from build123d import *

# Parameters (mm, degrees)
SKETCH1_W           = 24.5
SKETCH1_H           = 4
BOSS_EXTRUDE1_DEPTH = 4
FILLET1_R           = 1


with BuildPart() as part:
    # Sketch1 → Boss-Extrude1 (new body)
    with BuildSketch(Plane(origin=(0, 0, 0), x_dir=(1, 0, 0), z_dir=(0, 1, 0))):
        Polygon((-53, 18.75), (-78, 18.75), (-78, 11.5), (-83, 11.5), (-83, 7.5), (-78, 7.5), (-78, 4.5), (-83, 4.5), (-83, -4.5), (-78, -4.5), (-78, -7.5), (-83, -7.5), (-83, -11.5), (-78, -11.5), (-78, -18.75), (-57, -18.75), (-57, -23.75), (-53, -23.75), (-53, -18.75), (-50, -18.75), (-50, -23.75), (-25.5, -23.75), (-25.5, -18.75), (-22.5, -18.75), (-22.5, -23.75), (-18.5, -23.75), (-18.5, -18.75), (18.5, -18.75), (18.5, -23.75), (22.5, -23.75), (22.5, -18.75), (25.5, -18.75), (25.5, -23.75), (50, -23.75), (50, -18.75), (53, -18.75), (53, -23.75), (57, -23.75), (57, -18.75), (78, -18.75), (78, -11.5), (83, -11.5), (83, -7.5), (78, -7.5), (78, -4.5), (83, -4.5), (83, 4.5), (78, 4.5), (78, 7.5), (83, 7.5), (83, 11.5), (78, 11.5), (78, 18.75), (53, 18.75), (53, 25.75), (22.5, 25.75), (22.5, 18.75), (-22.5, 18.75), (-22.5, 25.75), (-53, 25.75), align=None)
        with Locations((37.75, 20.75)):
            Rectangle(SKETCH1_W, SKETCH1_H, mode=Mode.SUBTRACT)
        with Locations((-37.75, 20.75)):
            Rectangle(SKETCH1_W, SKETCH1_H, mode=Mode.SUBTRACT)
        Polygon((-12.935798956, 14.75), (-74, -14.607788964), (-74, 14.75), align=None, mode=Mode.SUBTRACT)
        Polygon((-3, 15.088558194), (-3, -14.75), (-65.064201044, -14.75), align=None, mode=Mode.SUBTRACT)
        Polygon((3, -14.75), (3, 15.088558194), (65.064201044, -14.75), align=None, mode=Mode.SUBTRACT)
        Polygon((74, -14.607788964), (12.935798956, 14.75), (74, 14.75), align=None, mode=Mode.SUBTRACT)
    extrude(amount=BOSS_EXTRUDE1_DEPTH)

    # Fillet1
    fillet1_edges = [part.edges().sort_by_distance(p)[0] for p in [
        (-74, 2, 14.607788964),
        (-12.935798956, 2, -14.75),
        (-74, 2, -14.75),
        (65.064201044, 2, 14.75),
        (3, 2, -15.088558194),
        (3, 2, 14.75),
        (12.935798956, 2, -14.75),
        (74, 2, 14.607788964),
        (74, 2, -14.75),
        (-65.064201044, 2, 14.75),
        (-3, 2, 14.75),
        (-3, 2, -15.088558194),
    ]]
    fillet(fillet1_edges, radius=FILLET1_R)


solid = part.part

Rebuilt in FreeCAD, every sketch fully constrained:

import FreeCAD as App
import Part
import Sketcher


def edges_at(feature, points):
    """Names of the edges that pass closest to the given points."""
    edges = feature.Shape.Edges
    near = lambda p: min(range(len(edges)), key=lambda i: edges[i].distToShape(Part.Vertex(*p))[0])
    return sorted({f"Edge{near(p) + 1}" for p in points})


def add_polygon(sketch, points):
    """Adds a closed chain of lines whose ends are joined by coincident constraints."""
    first, n = sketch.GeometryCount, len(points)
    for a, b in zip(points, points[1:] + points[:1]):
        sketch.addGeometry(Part.LineSegment(App.Vector(*a, 0), App.Vector(*b, 0)), False)
    for i in range(n):
        sketch.addConstraint(Sketcher.Constraint("Coincident", first + i, 2, first + (i + 1) % n, 1))

doc = App.newDocument("Part")
params = doc.addObject("Spreadsheet::Sheet", "Params")
for row, (alias, value) in enumerate([
    ("sketch1_width", "25 mm"),
    ("sketch1_width2", "5 mm"),
    ("sketch1_width3", "21 mm"),
    ("sketch1_width4", "3 mm"),
    ("sketch1_width5", "37 mm"),
    ("pad1_length", "4 mm"),
    ("fillet_radius", "1 mm"),
], start=1):
    params.set(f"A{row}", alias)
    params.set(f"B{row}", "=" + value)
    params.setAlias(f"B{row}", alias)

body = doc.addObject("PartDesign::Body", "Body")

sketch1 = body.newObject("Sketcher::SketchObject", "Sketch")
sketch1.AttachmentSupport = (doc.getObject("XZ_Plane"), [""])
sketch1.MapMode = "FlatFace"
add_polygon(sketch1, [(-53, -18.8), (-78, -18.8), (-78, -11.5), (-83, -11.5), (-83, -7.5), (-78, -7.5), (-78, -4.5), (-83, -4.5), (-83, 4.5), (-78, 4.5), (-78, 7.5), (-83, 7.5), (-83, 11.5), (-78, 11.5), (-78, 18.8), (-57, 18.8), (-57, 23.8), (-53, 23.8), (-53, 18.8), (-50, 18.8), (-50, 23.8), (-25.5, 23.8), (-25.5, 18.8), (-22.5, 18.8), (-22.5, 23.8), (-18.5, 23.8), (-18.5, 18.8), (18.5, 18.8), (18.5, 23.8), (22.5, 23.8), (22.5, 18.8), (25.5, 18.8), (25.5, 23.8), (50, 23.8), (50, 18.8), (53, 18.8), (53, 23.8), (57, 23.8), (57, 18.8), (78, 18.8), (78, 11.5), (83, 11.5), (83, 7.5), (78, 7.5), (78, 4.5), (83, 4.5), (83, -4.5), (78, -4.5), (78, -7.5), (83, -7.5), (83, -11.5), (78, -11.5), (78, -18.8), (53, -18.8), (53, -25.8), (22.5, -25.8), (22.5, -18.8), (-22.5, -18.8), (-22.5, -25.8), (-53, -25.8)])
add_polygon(sketch1, [(-74, -14.8), (-12.9, -14.8), (-74, 14.6)])
add_polygon(sketch1, [(-65.1, 14.8), (-3, -15.1), (-3, 14.8)])
add_polygon(sketch1, [(65.1, 14.8), (3, 14.8), (3, -15.1)])
add_polygon(sketch1, [(74, -14.8), (74, 14.6), (12.9, -14.8)])
add_polygon(sketch1, [(-25.5, -18.8), (-50, -18.8), (-50, -22.8), (-25.5, -22.8)])
add_polygon(sketch1, [(50, -18.8), (25.5, -18.8), (25.5, -22.8), (50, -22.8)])
sketch1.addConstraint([
    Sketcher.Constraint("Horizontal", 0),
    Sketcher.Constraint("Vertical", 1),
    Sketcher.Constraint("Horizontal", 2),
    Sketcher.Constraint("Vertical", 3),
    Sketcher.Constraint("Horizontal", 4),
    Sketcher.Constraint("Vertical", 5),
    Sketcher.Constraint("Horizontal", 6),
    Sketcher.Constraint("Vertical", 7),
    Sketcher.Constraint("Horizontal", 8),
    Sketcher.Constraint("Vertical", 9),
    Sketcher.Constraint("Horizontal", 10),
    Sketcher.Constraint("Vertical", 11),
    Sketcher.Constraint("Horizontal", 12),
    Sketcher.Constraint("Vertical", 13),
    Sketcher.Constraint("Horizontal", 14),
    Sketcher.Constraint("Vertical", 15),
    Sketcher.Constraint("Horizontal", 16),
    Sketcher.Constraint("Vertical", 17),
    Sketcher.Constraint("Horizontal", 18),
    Sketcher.Constraint("Vertical", 19),
    Sketcher.Constraint("Horizontal", 20),
    Sketcher.Constraint("Vertical", 21),
    Sketcher.Constraint("Horizontal", 22),
    Sketcher.Constraint("Vertical", 23),
    Sketcher.Constraint("Horizontal", 24),
    Sketcher.Constraint("Vertical", 25),
    Sketcher.Constraint("Horizontal", 26),
    Sketcher.Constraint("Vertical", 27),
    Sketcher.Constraint("Horizontal", 28),
    Sketcher.Constraint("Vertical", 29),
    Sketcher.Constraint("Horizontal", 30),
    Sketcher.Constraint("Vertical", 31),
    Sketcher.Constraint("Horizontal", 32),
    Sketcher.Constraint("Vertical", 33),
    Sketcher.Constraint("Horizontal", 34),
    Sketcher.Constraint("Vertical", 35),
    Sketcher.Constraint("Horizontal", 36),
    Sketcher.Constraint("Vertical", 37),
    Sketcher.Constraint("Horizontal", 38),
    Sketcher.Constraint("Vertical", 39),
    Sketcher.Constraint("Horizontal", 40),
    Sketcher.Constraint("Vertical", 41),
    Sketcher.Constraint("Horizontal", 42),
    Sketcher.Constraint("Vertical", 43),
    Sketcher.Constraint("Horizontal", 44),
    Sketcher.Constraint("Vertical", 45),
    Sketcher.Constraint("Horizontal", 46),
    Sketcher.Constraint("Vertical", 47),
    Sketcher.Constraint("Horizontal", 48),
    Sketcher.Constraint("Vertical", 49),
    Sketcher.Constraint("Horizontal", 50),
    Sketcher.Constraint("Vertical", 51),
    Sketcher.Constraint("Horizontal", 52),
    Sketcher.Constraint("Vertical", 53),
    Sketcher.Constraint("Horizontal", 54),
    Sketcher.Constraint("Vertical", 55),
    Sketcher.Constraint("Horizontal", 56),
    Sketcher.Constraint("Vertical", 57),
    Sketcher.Constraint("Horizontal", 58),
    Sketcher.Constraint("Vertical", 59),
    Sketcher.Constraint("Horizontal", 60),
    Sketcher.Constraint("Vertical", 62),
    Sketcher.Constraint("Vertical", 64),
    Sketcher.Constraint("Horizontal", 65),
    Sketcher.Constraint("Horizontal", 66),
    Sketcher.Constraint("Vertical", 67),
    Sketcher.Constraint("Vertical", 69),
    Sketcher.Constraint("Horizontal", 71),
    Sketcher.Constraint("Horizontal", 72),
    Sketcher.Constraint("Vertical", 73),
    Sketcher.Constraint("Horizontal", 74),
    Sketcher.Constraint("Vertical", 75),
    Sketcher.Constraint("Horizontal", 76),
    Sketcher.Constraint("Vertical", 77),
    Sketcher.Constraint("Horizontal", 78),
    Sketcher.Constraint("Vertical", 79),
    Sketcher.Constraint("Symmetric", 0, 2, 38, 2, -1, 1),
    Sketcher.Constraint("Symmetric", 2, 2, 40, 2, -1, 1),
    Sketcher.Constraint("Symmetric", 4, 2, 42, 2, -1, 1),
    Sketcher.Constraint("Symmetric", 6, 2, 44, 2, -1, 1),
    Sketcher.Constraint("Symmetric", 8, 2, 46, 2, -1, 1),
    Sketcher.Constraint("Symmetric", 10, 2, 48, 2, -1, 1),
    Sketcher.Constraint("Symmetric", 12, 2, 50, 2, -1, 1),
    Sketcher.Constraint("Symmetric", 17, 2, 52, 2, -1, 1),
    Sketcher.Constraint("Symmetric", 22, 2, 55, 2, -1, 1),
    Sketcher.Constraint("Symmetric", 29, 2, 56, 2, -1, 1),
    Sketcher.Constraint("Symmetric", 34, 2, 59, 2, -1, 1),
    Sketcher.Constraint("Symmetric", 33, 2, 72, 2, -1, 1),
    Sketcher.Constraint("Symmetric", 30, 2, 75, 2, -1, 1),
    Sketcher.Constraint("Symmetric", 21, 2, 76, 2, -1, 1),
    Sketcher.Constraint("Symmetric", 18, 2, 79, 2, -1, 1),
    Sketcher.Constraint("Symmetric", 24, 2, 27, 2, -2),
    Sketcher.Constraint("Symmetric", 20, 2, 31, 2, -2),
    Sketcher.Constraint("Symmetric", 16, 2, 35, 2, -2),
    Sketcher.Constraint("Symmetric", 14, 2, 37, 2, -2),
    Sketcher.Constraint("Symmetric", 12, 2, 39, 2, -2),
    Sketcher.Constraint("Symmetric", 10, 2, 41, 2, -2),
    Sketcher.Constraint("Symmetric", 8, 2, 43, 2, -2),
    Sketcher.Constraint("Symmetric", 54, 2, 57, 2, -2),
    Sketcher.Constraint("Symmetric", 64, 2, 66, 2, -2),
    Sketcher.Constraint("Symmetric", 61, 2, 69, 2, -2),
    Sketcher.Constraint("Symmetric", 60, 2, 70, 2, -2),
    Sketcher.Constraint("Symmetric", 73, 2, 78, 2, -2),
    Sketcher.Constraint("Parallel", 61, 63),
    Sketcher.Constraint("Parallel", 68, 70),
    Sketcher.Constraint("Horizontal", 16, 2, 19, 2),
    Sketcher.Constraint("Horizontal", 20, 2, 23, 2),
    Sketcher.Constraint("Horizontal", 22, 2, 25, 2),
    Sketcher.Constraint("Horizontal", 63, 2, 67, 2),
    Sketcher.Constraint("Vertical", 1, 2, 4, 2),
    Sketcher.Constraint("Vertical", 3, 2, 6, 2),
    Sketcher.Constraint("Equal", 18, 22),
    Sketcher.Constraint("Equal", 16, 24),
    Sketcher.Constraint("Equal", 36, 3),
    Sketcher.Constraint("Equal", 34, 5),
    Sketcher.Constraint("Equal", 50, 15),
    Sketcher.Constraint("Equal", 49, 73),
    Sketcher.Constraint("DistanceX", 0, 2, 0, 1, 25.0),
    Sketcher.Constraint("DistanceX", 2, 2, 2, 1, 5.0),
    Sketcher.Constraint("DistanceX", 14, 1, 14, 2, 21.0),
    Sketcher.Constraint("DistanceX", 18, 1, 18, 2, 3.0),
    Sketcher.Constraint("DistanceX", 26, 1, 26, 2, 37.0),
    Sketcher.Constraint("DistanceY", 7, 1, 7, 2, 9.0),
    Sketcher.Constraint("DistanceY", 53, 2, 53, 1, 7.0),
    Sketcher.Constraint("DistanceX", 20, 1, 20, 2, 24.5),
    Sketcher.Constraint("DistanceX", 61, 2, -1, 1, 74.0),
    Sketcher.Constraint("DistanceX", 63, 2, -1, 1, 3.0),
    Sketcher.Constraint("DistanceY", 1, 1, 1, 2, 7.25),
    Sketcher.Constraint("DistanceY", 60, 2, -1, 1, 14.75),
    Sketcher.Constraint("DistanceY", -1, 1, 64, 2, 14.75),
    Sketcher.Constraint("DistanceX", 60, 1, 60, 2, 61.064201),
    Sketcher.Constraint("DistanceX", 65, 2, 65, 1, 62.064201),
    Sketcher.Constraint("DistanceY", 62, 2, 62, 1, 29.357789),
])
sketch1.setExpression("Constraints[197]", "Params.sketch1_width")
sketch1.setExpression("Constraints[198]", "Params.sketch1_width2")
sketch1.setExpression("Constraints[199]", "Params.sketch1_width3")
sketch1.setExpression("Constraints[200]", "Params.sketch1_width4")
sketch1.setExpression("Constraints[201]", "Params.sketch1_width5")
pad1 = body.newObject("PartDesign::Pad", "Pad")
pad1.Profile = sketch1
pad1.setExpression("Length", "Params.pad1_length")
pad1.Reversed = True
doc.recompute()

fillet = body.newObject("PartDesign::Fillet", "Fillet")
fillet.Base = (pad1, edges_at(pad1, [
    (-74, 2, 14.608),
    (-12.936, 2, -14.75),
    (-74, 2, -14.75),
    (65.064, 2, 14.75),
    (3, 2, -15.089),
    (3, 2, 14.75),
    (12.936, 2, -14.75),
    (74, 2, 14.608),
    (74, 2, -14.75),
    (-65.064, 2, 14.75),
    (-3, 2, 14.75),
    (-3, 2, -15.089),
]))
fillet.setExpression("Radius", "Params.fillet_radius")

doc.recompute()
